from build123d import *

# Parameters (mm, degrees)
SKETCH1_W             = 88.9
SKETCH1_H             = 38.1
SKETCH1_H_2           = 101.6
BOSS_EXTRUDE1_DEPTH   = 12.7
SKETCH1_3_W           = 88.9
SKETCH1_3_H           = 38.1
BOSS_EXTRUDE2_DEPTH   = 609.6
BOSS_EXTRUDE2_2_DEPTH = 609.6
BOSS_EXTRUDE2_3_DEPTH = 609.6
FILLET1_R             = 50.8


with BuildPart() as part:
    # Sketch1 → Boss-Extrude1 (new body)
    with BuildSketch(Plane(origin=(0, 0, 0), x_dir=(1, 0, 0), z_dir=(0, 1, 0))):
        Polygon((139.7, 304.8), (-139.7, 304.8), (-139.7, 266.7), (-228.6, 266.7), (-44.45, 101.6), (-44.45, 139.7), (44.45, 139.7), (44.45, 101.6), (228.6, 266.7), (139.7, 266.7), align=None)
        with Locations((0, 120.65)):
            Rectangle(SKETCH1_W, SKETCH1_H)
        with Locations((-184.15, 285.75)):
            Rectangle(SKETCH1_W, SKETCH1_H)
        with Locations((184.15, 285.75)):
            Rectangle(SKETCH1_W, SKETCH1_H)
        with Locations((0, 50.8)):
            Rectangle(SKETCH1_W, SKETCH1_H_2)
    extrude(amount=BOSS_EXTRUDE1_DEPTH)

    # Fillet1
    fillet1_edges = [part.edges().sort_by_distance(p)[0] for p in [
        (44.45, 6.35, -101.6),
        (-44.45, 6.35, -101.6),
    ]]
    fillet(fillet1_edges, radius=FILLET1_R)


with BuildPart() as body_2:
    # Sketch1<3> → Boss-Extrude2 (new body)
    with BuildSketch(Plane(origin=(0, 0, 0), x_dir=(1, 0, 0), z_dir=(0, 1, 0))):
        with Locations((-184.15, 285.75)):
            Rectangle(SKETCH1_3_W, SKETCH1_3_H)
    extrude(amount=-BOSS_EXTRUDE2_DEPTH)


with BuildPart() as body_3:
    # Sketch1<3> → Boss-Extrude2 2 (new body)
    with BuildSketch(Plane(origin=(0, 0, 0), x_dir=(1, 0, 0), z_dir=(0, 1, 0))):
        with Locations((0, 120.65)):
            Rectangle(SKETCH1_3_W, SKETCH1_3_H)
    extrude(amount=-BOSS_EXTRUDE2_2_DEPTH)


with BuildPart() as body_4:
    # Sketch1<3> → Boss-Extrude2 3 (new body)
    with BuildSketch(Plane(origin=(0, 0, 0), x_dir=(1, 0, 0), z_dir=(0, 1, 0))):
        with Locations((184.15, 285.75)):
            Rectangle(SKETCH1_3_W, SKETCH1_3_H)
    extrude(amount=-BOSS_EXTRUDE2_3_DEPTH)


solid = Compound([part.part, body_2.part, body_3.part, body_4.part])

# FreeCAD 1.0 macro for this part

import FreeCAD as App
import Part
import Sketcher

V = App.Vector
Q = App.Units.Quantity


def edges_at(feature, points):
    """Names of the edges that pass closest to the given points."""
    edges = feature.Shape.Edges
    near = lambda p: min(range(len(edges)), key=lambda i: edges[i].distToShape(Part.Vertex(*p))[0])
    return sorted({f"Edge{near(p) + 1}" for p in points})

doc = App.newDocument("Part")
body = doc.addObject("PartDesign::Body", "Body")

sketch1 = doc.addObject("Sketcher::SketchObject", "Sketch")
body.addObject(sketch1)
sketch1.AttachmentSupport = (doc.XZ_Plane, [""])
sketch1.MapMode = "FlatFace"
sketch1.addGeometry([
    Part.LineSegment(V(-229, -305, 0), V(-229, -267, 0)),
    Part.LineSegment(V(-229, -267, 0), V(-44, -102, 0)),
    Part.LineSegment(V(-44, -102, 0), V(-44, 0, 0)),
    Part.LineSegment(V(-44, 0, 0), V(44, 0, 0)),
    Part.LineSegment(V(44, 0, 0), V(44, -102, 0)),
    Part.LineSegment(V(44, -102, 0), V(229, -267, 0)),
    Part.LineSegment(V(229, -267, 0), V(229, -305, 0)),
    Part.LineSegment(V(229, -305, 0), V(-229, -305, 0)),
], False)
sketch1.addConstraint([
    Sketcher.Constraint("Coincident", 0, 2, 1, 1),
    Sketcher.Constraint("Coincident", 1, 2, 2, 1),
    Sketcher.Constraint("Coincident", 2, 2, 3, 1),
    Sketcher.Constraint("Coincident", 3, 2, 4, 1),
    Sketcher.Constraint("Coincident", 4, 2, 5, 1),
    Sketcher.Constraint("Coincident", 5, 2, 6, 1),
    Sketcher.Constraint("Coincident", 6, 2, 7, 1),
    Sketcher.Constraint("Coincident", 7, 2, 0, 1),
    Sketcher.Constraint("Vertical", 0),
    Sketcher.Constraint("Vertical", 2),
    Sketcher.Constraint("Horizontal", 3),
    Sketcher.Constraint("Vertical", 4),
    Sketcher.Constraint("Vertical", 6),
    Sketcher.Constraint("Horizontal", 7),
    Sketcher.Constraint("Symmetric", 2, 2, 3, 2, -1, 1),
    Sketcher.Constraint("Symmetric", 0, 2, 5, 2, -2),
    Sketcher.Constraint("Horizontal", 1, 2, 4, 2),
    Sketcher.Constraint("DistanceX", 7, 2, 7, 1, Q("18 in")),
    Sketcher.Constraint("DistanceY", 2, 1, 2, 2, Q("4 in")),
    Sketcher.Constraint("DistanceX", 3, 1, 3, 2, Q("3.5 in")),
    Sketcher.Constraint("DistanceY", 0, 1, 0, 2, Q("1.5 in")),
    Sketcher.Constraint("DistanceY", 6, 2, -1, 1, Q("12 in")),
])
pad1 = doc.addObject("PartDesign::Pad", "Pad")
body.addObject(pad1)
pad1.Profile = sketch1
pad1.Length = Q("0.5 in")
pad1.Reversed = True
doc.recompute()

fillet = doc.addObject("PartDesign::Fillet", "Fillet")
body.addObject(fillet)
fillet.Base = (pad1, edges_at(pad1, [(44.45, 6.35, -101.6), (-44.45, 6.35, -101.6)]))
fillet.Radius = Q("2 in")
body2 = doc.addObject("PartDesign::Body", "Body001")

sketch2 = doc.addObject("Sketcher::SketchObject", "Sketch001")
body2.addObject(sketch2)
sketch2.AttachmentSupport = (doc.getObject("XZ_Plane001"), [""])
sketch2.MapMode = "FlatFace"
sketch2.addGeometry([
    Part.LineSegment(V(-229, -305, 0), V(-229, -267, 0)),
    Part.LineSegment(V(-229, -267, 0), V(-140, -267, 0)),
    Part.LineSegment(V(-140, -267, 0), V(-140, -305, 0)),
    Part.LineSegment(V(-140, -305, 0), V(-229, -305, 0)),
], False)
sketch2.addConstraint([
    Sketcher.Constraint("Coincident", 0, 2, 1, 1),
    Sketcher.Constraint("Coincident", 1, 2, 2, 1),
    Sketcher.Constraint("Coincident", 2, 2, 3, 1),
    Sketcher.Constraint("Coincident", 3, 2, 0, 1),
    Sketcher.Constraint("Vertical", 0),
    Sketcher.Constraint("Horizontal", 1),
    Sketcher.Constraint("Vertical", 2),
    Sketcher.Constraint("Horizontal", 3),
    Sketcher.Constraint("DistanceX", 1, 1, 1, 2, Q("3.5 in")),
    Sketcher.Constraint("DistanceY", 0, 1, 0, 2, Q("1.5 in")),
    Sketcher.Constraint("DistanceX", 0, 2, -1, 1, Q("9 in")),
    Sketcher.Constraint("DistanceY", 2, 2, -1, 1, Q("12 in")),
])
pad2 = doc.addObject("PartDesign::Pad", "Pad001")
body2.addObject(pad2)
pad2.Profile = sketch2
pad2.Length = Q("24 in")
body3 = doc.addObject("PartDesign::Body", "Body002")

sketch3 = doc.addObject("Sketcher::SketchObject", "Sketch002")
body3.addObject(sketch3)
sketch3.AttachmentSupport = (doc.getObject("XZ_Plane002"), [""])
sketch3.MapMode = "FlatFace"
sketch3.addGeometry([
    Part.LineSegment(V(-44, -140, 0), V(-44, -102, 0)),
    Part.LineSegment(V(-44, -102, 0), V(44, -102, 0)),
    Part.LineSegment(V(44, -102, 0), V(44, -140, 0)),
    Part.LineSegment(V(44, -140, 0), V(-44, -140, 0)),
], False)
sketch3.addConstraint([
    Sketcher.Constraint("Coincident", 0, 2, 1, 1),
    Sketcher.Constraint("Coincident", 1, 2, 2, 1),
    Sketcher.Constraint("Coincident", 2, 2, 3, 1),
    Sketcher.Constraint("Coincident", 3, 2, 0, 1),
    Sketcher.Constraint("Vertical", 0),
    Sketcher.Constraint("Horizontal", 1),
    Sketcher.Constraint("Vertical", 2),
    Sketcher.Constraint("Horizontal", 3),
    Sketcher.Constraint("DistanceX", 1, 1, 1, 2, Q("3.5 in")),
    Sketcher.Constraint("DistanceY", 0, 1, 0, 2, Q("1.5 in")),
    Sketcher.Constraint("DistanceY", 0, 2, -1, 1, Q("4 in")),
    Sketcher.Constraint("DistanceX", 0, 2, -1, 1, Q("1.75 in")),
])
pad3 = doc.addObject("PartDesign::Pad", "Pad002")
body3.addObject(pad3)
pad3.Profile = sketch3
pad3.Length = Q("24 in")
body4 = doc.addObject("PartDesign::Body", "Body003")

sketch4 = doc.addObject("Sketcher::SketchObject", "Sketch003")
body4.addObject(sketch4)
sketch4.AttachmentSupport = (doc.getObject("XZ_Plane003"), [""])
sketch4.MapMode = "FlatFace"
sketch4.addGeometry([
    Part.LineSegment(V(140, -305, 0), V(140, -267, 0)),
    Part.LineSegment(V(140, -267, 0), V(229, -267, 0)),
    Part.LineSegment(V(229, -267, 0), V(229, -305, 0)),
    Part.LineSegment(V(229, -305, 0), V(140, -305, 0)),
], False)
sketch4.addConstraint([
    Sketcher.Constraint("Coincident", 0, 2, 1, 1),
    Sketcher.Constraint("Coincident", 1, 2, 2, 1),
    Sketcher.Constraint("Coincident", 2, 2, 3, 1),
    Sketcher.Constraint("Coincident", 3, 2, 0, 1),
    Sketcher.Constraint("Vertical", 0),
    Sketcher.Constraint("Horizontal", 1),
    Sketcher.Constraint("Vertical", 2),
    Sketcher.Constraint("Horizontal", 3),
    Sketcher.Constraint("DistanceX", 1, 1, 1, 2, Q("3.5 in")),
    Sketcher.Constraint("DistanceY", 0, 1, 0, 2, Q("1.5 in")),
    Sketcher.Constraint("DistanceX", -1, 1, 1, 2, Q("9 in")),
    Sketcher.Constraint("DistanceY", 2, 2, -1, 1, Q("12 in")),
])
pad4 = doc.addObject("PartDesign::Pad", "Pad003")
body4.addObject(pad4)
pad4.Profile = sketch4
pad4.Length = Q("24 in")

doc.recompute()
